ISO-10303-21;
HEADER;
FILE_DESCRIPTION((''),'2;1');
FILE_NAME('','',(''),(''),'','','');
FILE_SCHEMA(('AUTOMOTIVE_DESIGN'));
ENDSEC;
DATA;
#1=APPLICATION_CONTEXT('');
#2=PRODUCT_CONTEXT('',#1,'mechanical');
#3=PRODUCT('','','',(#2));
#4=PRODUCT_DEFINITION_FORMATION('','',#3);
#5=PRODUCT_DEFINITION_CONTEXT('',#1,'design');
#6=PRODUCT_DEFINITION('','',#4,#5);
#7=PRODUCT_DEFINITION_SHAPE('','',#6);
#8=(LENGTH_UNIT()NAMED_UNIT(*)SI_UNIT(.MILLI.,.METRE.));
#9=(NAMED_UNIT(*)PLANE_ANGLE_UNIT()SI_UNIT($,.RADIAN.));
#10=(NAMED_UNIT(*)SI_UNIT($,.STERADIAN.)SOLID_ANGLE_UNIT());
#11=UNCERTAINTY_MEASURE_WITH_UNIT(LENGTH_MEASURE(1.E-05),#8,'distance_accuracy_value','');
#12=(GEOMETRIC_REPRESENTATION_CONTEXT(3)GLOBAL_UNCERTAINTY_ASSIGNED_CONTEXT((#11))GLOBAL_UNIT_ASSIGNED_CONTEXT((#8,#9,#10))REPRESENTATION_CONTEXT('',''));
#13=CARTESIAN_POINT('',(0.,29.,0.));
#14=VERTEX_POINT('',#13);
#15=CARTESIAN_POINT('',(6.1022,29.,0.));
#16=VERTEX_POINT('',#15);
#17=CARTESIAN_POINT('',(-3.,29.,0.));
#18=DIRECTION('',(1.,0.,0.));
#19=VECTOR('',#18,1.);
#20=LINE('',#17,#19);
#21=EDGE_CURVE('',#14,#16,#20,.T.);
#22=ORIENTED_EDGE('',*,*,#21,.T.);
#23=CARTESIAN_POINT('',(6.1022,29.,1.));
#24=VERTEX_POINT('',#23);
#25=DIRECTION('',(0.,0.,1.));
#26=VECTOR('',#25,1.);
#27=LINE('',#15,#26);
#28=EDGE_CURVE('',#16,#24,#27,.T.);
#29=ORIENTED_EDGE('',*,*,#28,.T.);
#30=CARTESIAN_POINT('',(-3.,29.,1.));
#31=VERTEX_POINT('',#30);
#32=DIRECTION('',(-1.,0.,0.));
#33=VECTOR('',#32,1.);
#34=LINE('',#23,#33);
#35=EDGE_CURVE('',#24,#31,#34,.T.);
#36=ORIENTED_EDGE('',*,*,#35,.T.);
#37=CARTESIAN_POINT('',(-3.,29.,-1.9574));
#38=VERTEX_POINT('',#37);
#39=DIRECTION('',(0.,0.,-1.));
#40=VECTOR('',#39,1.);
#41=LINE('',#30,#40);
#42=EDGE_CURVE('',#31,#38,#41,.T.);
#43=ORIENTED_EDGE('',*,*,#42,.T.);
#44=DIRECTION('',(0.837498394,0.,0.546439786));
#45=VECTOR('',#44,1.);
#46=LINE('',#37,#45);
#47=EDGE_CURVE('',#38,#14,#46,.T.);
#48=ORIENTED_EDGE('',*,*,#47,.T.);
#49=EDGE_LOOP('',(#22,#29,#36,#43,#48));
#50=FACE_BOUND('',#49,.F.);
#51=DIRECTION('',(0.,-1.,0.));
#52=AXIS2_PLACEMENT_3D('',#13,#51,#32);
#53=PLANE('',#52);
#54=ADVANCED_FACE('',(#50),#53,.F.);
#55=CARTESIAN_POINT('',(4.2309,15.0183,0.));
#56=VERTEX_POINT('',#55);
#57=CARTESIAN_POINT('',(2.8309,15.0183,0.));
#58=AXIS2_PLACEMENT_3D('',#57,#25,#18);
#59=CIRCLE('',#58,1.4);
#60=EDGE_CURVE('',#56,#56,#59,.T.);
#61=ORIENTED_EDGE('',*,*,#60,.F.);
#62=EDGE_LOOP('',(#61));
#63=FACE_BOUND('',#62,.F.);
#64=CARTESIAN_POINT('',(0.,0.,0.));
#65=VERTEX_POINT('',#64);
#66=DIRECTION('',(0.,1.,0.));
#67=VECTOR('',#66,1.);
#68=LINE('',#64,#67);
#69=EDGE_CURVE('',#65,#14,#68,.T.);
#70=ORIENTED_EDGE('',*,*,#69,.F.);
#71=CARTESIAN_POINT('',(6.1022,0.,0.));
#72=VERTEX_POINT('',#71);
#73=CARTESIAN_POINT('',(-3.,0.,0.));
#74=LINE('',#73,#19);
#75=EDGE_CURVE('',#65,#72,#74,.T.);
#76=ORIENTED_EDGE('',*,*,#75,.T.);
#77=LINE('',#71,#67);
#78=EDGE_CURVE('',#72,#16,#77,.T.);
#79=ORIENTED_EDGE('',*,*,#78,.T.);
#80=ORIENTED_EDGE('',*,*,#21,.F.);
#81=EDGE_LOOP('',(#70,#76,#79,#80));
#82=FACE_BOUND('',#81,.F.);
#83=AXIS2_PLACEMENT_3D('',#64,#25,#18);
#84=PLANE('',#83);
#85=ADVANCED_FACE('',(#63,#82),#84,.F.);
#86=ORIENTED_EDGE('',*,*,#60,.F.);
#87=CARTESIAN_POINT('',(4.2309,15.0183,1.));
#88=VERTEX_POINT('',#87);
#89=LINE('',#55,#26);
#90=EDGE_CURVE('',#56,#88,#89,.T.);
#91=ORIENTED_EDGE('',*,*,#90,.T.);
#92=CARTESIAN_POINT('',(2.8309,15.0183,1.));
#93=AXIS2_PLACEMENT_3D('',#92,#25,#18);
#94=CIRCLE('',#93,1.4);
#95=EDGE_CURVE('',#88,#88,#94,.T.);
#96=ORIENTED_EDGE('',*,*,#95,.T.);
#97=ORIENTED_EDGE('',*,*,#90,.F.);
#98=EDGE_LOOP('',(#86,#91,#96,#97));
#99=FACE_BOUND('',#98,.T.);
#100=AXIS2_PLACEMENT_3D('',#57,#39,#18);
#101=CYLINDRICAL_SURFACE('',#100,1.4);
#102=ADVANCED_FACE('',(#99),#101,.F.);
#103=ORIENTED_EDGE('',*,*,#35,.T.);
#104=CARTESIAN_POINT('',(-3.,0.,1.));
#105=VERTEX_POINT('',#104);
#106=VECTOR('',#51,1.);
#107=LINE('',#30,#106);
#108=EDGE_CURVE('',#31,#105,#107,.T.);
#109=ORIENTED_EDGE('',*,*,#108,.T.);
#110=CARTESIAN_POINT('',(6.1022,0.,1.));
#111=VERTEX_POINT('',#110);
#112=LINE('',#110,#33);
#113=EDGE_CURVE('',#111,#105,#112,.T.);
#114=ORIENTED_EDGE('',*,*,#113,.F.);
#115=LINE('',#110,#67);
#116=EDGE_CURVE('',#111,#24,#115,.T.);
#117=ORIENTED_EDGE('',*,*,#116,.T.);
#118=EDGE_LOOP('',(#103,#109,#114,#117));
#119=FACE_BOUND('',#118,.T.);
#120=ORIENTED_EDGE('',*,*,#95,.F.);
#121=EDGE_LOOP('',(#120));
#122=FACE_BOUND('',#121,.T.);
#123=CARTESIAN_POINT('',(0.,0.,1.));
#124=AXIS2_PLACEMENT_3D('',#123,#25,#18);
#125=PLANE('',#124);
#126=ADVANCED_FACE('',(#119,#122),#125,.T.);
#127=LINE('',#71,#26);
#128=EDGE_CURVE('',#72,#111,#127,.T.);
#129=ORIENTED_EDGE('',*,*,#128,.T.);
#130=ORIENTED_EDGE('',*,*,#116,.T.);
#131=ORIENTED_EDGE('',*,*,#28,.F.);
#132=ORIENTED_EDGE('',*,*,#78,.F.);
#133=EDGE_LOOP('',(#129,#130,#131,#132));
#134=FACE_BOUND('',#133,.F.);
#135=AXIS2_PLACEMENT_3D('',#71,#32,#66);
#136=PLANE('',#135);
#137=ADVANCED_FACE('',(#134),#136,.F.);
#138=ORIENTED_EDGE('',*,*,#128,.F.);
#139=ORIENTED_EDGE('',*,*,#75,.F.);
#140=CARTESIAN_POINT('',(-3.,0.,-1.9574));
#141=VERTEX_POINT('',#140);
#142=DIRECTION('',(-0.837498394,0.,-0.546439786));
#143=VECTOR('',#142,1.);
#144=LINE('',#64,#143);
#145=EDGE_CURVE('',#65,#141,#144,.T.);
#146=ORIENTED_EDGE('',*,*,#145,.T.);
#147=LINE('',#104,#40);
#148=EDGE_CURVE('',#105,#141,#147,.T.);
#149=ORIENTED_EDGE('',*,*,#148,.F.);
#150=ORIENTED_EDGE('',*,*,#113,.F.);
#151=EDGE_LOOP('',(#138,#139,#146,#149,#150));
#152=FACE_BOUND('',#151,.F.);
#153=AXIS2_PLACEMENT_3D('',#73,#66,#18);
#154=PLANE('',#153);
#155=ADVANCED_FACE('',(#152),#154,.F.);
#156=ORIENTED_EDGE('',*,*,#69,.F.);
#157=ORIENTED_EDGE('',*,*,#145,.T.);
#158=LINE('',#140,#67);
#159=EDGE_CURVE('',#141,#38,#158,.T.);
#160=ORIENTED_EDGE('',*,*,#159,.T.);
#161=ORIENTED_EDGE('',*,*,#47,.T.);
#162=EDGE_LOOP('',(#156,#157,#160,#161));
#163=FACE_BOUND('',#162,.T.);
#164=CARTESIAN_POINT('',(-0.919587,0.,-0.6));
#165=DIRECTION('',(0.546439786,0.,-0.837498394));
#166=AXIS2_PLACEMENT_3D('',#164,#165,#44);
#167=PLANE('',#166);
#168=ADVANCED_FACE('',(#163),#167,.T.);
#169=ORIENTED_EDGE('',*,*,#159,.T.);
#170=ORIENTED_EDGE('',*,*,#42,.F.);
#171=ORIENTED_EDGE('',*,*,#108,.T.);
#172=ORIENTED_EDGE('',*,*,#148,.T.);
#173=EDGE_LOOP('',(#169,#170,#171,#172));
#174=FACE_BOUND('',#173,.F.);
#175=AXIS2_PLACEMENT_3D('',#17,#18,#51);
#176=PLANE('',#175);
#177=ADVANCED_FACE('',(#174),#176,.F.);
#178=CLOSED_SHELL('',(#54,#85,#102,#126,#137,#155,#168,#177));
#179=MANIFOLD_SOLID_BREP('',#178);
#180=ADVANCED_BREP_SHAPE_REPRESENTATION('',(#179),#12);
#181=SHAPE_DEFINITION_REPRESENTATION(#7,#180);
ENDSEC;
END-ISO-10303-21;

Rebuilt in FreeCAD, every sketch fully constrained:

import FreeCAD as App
import Part
import Sketcher
from FreeCAD import Vector


def add_polygon(sketch, points):
    """Adds a closed chain of lines whose ends are joined by coincident constraints."""
    first, n = sketch.GeometryCount, len(points)
    for a, b in zip(points, points[1:] + points[:1]):
        sketch.addGeometry(Part.LineSegment(App.Vector(*a, 0), App.Vector(*b, 0)), False)
    for i in range(n):
        sketch.addConstraint(Sketcher.Constraint("Coincident", first + i, 2, first + (i + 1) % n, 1))

doc = App.newDocument("Part")
body = doc.addObject("PartDesign::Body", "Body")

# Sketch on XY plane
sketch1 = body.newObject("Sketcher::SketchObject", "Sketch")
sketch1.AttachmentSupport = (doc.getObject("XY_Plane"), [""])
sketch1.MapMode = "FlatFace"
add_polygon(sketch1, [(-3, 0), (6.1, 0), (6.1, 29), (-3, 29)])  # lines 0-3
sketch1.addGeometry(Part.Circle(Vector(2.8, 15, 0), Vector(0, 0, 1), 1.4), False)  # 4
sketch1.addConstraint(Sketcher.Constraint("Horizontal", 0))
sketch1.addConstraint(Sketcher.Constraint("Vertical", 1))
sketch1.addConstraint(Sketcher.Constraint("Horizontal", 2))
sketch1.addConstraint(Sketcher.Constraint("Vertical", 3))
sketch1.addConstraint(Sketcher.Constraint("PointOnObject", 0, 2, -1))
sketch1.addConstraint(Sketcher.Constraint("DistanceX", 2, 2, -1, 1, 3.0))
sketch1.addConstraint(Sketcher.Constraint("Diameter", 4, 2.8))
sketch1.addConstraint(Sketcher.Constraint("DistanceY", 1, 1, 1, 2, 29.0))
sketch1.addConstraint(Sketcher.Constraint("DistanceX", 0, 1, 0, 2, 9.1022))
sketch1.addConstraint(Sketcher.Constraint("DistanceX", -1, 1, 4, 3, 2.831))
sketch1.addConstraint(Sketcher.Constraint("DistanceY", -1, 1, 4, 3, 15.0183))
pad1 = body.newObject("PartDesign::Pad", "Pad")
pad1.Profile = sketch1
pad1.Length = 1

# Sketch on XZ plane
sketch2 = body.newObject("Sketcher::SketchObject", "Sketch001")
sketch2.AttachmentSupport = (doc.getObject("XZ_Plane"), [""])
sketch2.MapMode = "FlatFace"
add_polygon(sketch2, [(0, 0), (-3, 0), (-3, -2)])  # lines 0-2
sketch2.addConstraint(Sketcher.Constraint("Horizontal", 0))
sketch2.addConstraint(Sketcher.Constraint("Vertical", 1))
sketch2.addConstraint(Sketcher.Constraint("Coincident", 2, 2, -1, 1))
sketch2.addConstraint(Sketcher.Constraint("DistanceX", 0, 2, 0, 1, 3.0))
sketch2.addConstraint(Sketcher.Constraint("Distance", 2, 3.582))
pad2 = body.newObject("PartDesign::Pad", "Pad001")
pad2.Profile = sketch2
pad2.Length = 29
pad2.Reversed = True

doc.recompute()
